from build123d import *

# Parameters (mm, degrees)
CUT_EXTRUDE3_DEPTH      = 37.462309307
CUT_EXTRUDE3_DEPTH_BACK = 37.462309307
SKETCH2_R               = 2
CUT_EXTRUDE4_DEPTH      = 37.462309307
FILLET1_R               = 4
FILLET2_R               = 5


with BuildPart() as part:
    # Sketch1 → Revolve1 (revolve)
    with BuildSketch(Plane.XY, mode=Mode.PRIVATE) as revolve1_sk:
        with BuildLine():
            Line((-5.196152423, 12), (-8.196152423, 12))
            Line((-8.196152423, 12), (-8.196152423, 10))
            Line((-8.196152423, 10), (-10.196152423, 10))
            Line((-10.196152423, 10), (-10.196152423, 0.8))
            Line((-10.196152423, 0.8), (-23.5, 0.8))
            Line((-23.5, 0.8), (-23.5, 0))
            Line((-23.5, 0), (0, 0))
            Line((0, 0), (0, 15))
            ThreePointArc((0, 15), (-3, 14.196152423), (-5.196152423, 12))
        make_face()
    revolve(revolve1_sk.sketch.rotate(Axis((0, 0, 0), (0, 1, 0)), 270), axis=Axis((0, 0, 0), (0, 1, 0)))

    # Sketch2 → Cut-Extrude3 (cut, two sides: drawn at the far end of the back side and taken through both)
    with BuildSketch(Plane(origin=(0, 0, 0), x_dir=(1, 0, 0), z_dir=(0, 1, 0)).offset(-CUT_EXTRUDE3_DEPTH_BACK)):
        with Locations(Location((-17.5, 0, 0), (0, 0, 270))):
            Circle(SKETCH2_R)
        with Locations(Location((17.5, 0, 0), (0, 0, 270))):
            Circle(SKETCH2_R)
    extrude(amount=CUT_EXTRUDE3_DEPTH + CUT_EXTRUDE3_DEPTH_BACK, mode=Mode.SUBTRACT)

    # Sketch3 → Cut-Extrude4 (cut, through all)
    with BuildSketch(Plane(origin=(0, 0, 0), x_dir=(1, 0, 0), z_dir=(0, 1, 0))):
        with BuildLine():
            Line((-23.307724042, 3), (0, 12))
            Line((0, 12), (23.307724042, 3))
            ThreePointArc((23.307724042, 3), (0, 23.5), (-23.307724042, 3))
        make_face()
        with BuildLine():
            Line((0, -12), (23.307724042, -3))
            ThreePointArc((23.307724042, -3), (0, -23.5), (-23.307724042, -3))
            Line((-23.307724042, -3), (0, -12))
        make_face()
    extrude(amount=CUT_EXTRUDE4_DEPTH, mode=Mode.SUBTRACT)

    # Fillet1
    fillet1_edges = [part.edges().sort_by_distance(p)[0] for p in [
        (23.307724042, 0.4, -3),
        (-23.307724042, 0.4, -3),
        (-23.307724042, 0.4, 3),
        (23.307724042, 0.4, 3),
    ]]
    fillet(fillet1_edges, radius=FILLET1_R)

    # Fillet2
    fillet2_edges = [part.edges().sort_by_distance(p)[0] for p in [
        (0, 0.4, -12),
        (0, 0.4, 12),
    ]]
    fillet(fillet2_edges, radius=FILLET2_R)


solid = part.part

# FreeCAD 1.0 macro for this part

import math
import FreeCAD as App
import Part
import Sketcher
from FreeCAD import Vector
Q = App.Units.Quantity


def edges_at(feature, points):
    """Names of the edges that pass closest to the given points."""
    edges = feature.Shape.Edges
    near = lambda p: min(range(len(edges)), key=lambda i: edges[i].distToShape(Part.Vertex(*p))[0])
    return sorted({f"Edge{near(p) + 1}" for p in points})

doc = App.newDocument("Part")
params = doc.addObject("Spreadsheet::Sheet", "Params")
for row, (alias, value) in enumerate([
    ("sketch1_radius", "6 mm"),
    ("sketch1_width", "3 mm"),
    ("sketch1_width2", "2 mm"),
    ("sketch1_height", "15 mm"),
    ("sketch1_width3", "23.5 mm"),
    ("revolution_angle", "360 deg"),
    ("sketch2_diameter", "4 mm"),
    ("sketch3_radius", "23.5 mm"),
    ("fillet_radius", "4 mm"),
    ("fillet2_radius", "5 mm"),
], start=1):
    params.set(f"A{row}", alias)
    params.set(f"B{row}", "=" + value)
    params.setAlias(f"B{row}", alias)

body = doc.addObject("PartDesign::Body", "Body")

# Sketch on XY plane
sketch1 = body.newObject("Sketcher::SketchObject", "Sketch")
sketch1.AttachmentSupport = (doc.getObject("XY_Plane"), [""])
sketch1.MapMode = "FlatFace"
sketch1.addGeometry(Part.LineSegment(Vector(-5.196152, 12, 0), Vector(-8.196152, 12, 0)), False)
sketch1.addGeometry(Part.LineSegment(Vector(-8.196152, 12, 0), Vector(-8.196152, 10, 0)), False)
sketch1.addGeometry(Part.LineSegment(Vector(-8.196152, 10, 0), Vector(-10.196152, 10, 0)), False)
sketch1.addGeometry(Part.LineSegment(Vector(-10.196152, 10, 0), Vector(-10.196152, 0.8, 0)), False)
sketch1.addGeometry(Part.LineSegment(Vector(-10.196152, 0.8, 0), Vector(-23.5, 0.8, 0)), False)
sketch1.addGeometry(Part.LineSegment(Vector(-23.5, 0.8, 0), Vector(-23.5, 0, 0)), False)
sketch1.addGeometry(Part.LineSegment(Vector(-23.5, 0, 0), Vector(0, 0, 0)), False)
sketch1.addGeometry(Part.LineSegment(Vector(0, 0, 0), Vector(0, 15, 0)), False)
sketch1.addGeometry(Part.ArcOfCircle(Part.Circle(Vector(0, 9, 0), Vector(0, 0, 1), 6), math.radians(90), math.radians(150)), False)
sketch1.addConstraint(Sketcher.Constraint("Coincident", 0, 2, 1, 1))
sketch1.addConstraint(Sketcher.Constraint("Coincident", 1, 2, 2, 1))
sketch1.addConstraint(Sketcher.Constraint("Coincident", 2, 2, 3, 1))
sketch1.addConstraint(Sketcher.Constraint("Coincident", 3, 2, 4, 1))
sketch1.addConstraint(Sketcher.Constraint("Coincident", 4, 2, 5, 1))
sketch1.addConstraint(Sketcher.Constraint("Coincident", 5, 2, 6, 1))
sketch1.addConstraint(Sketcher.Constraint("Coincident", 6, 2, 7, 1))
sketch1.addConstraint(Sketcher.Constraint("Coincident", 7, 2, 8, 1))
sketch1.addConstraint(Sketcher.Constraint("Coincident", 8, 2, 0, 1))
sketch1.addConstraint(Sketcher.Constraint("Horizontal", 0))
sketch1.addConstraint(Sketcher.Constraint("Vertical", 1))
sketch1.addConstraint(Sketcher.Constraint("Horizontal", 2))
sketch1.addConstraint(Sketcher.Constraint("Vertical", 3))
sketch1.addConstraint(Sketcher.Constraint("Horizontal", 4))
sketch1.addConstraint(Sketcher.Constraint("Vertical", 5))
sketch1.addConstraint(Sketcher.Constraint("Horizontal", 6))
sketch1.addConstraint(Sketcher.Constraint("Vertical", 7))
sketch1.addConstraint(Sketcher.Constraint("Coincident", 6, 2, -1, 1))
sketch1.addConstraint(Sketcher.Constraint("PointOnObject", 8, 3, -2))
sketch1.addConstraint(Sketcher.Constraint("Equal", 2, 1))
sketch1.addConstraint(Sketcher.Constraint("Radius", 8, Q("6 mm")))
sketch1.addConstraint(Sketcher.Constraint("DistanceX", 0, 2, 0, 1, Q("3 mm")))
sketch1.addConstraint(Sketcher.Constraint("DistanceX", 2, 2, 2, 1, Q("2 mm")))
sketch1.addConstraint(Sketcher.Constraint("DistanceY", 7, 1, 7, 2, Q("15 mm")))
sketch1.addConstraint(Sketcher.Constraint("DistanceX", 6, 1, 6, 2, Q("23.5 mm")))
sketch1.addConstraint(Sketcher.Constraint("DistanceY", 3, 2, 3, 1, Q("9.2 mm")))
sketch1.addConstraint(Sketcher.Constraint("DistanceY", 5, 2, 5, 1, Q("0.8 mm")))
sketch1.setExpression("Constraints[20]", "Params.sketch1_radius")
sketch1.setExpression("Constraints[21]", "Params.sketch1_width")
sketch1.setExpression("Constraints[22]", "Params.sketch1_width2")
sketch1.setExpression("Constraints[23]", "Params.sketch1_height")
sketch1.setExpression("Constraints[24]", "Params.sketch1_width3")
revolution = body.newObject("PartDesign::Revolution", "Revolution")
revolution.Profile = sketch1
revolution.ReferenceAxis = (sketch1, ["V_Axis"])
revolution.setExpression("Angle", "Params.revolution_angle")

# Sketch on XZ plane
sketch2 = body.newObject("Sketcher::SketchObject", "Sketch001")
sketch2.AttachmentSupport = (doc.getObject("XZ_Plane"), [""])
sketch2.MapMode = "FlatFace"
sketch2.addGeometry(Part.Circle(Vector(-17.5, 0, 0), Vector(0, 0, 1), 2), False)
sketch2.addGeometry(Part.Circle(Vector(17.5, 0, 0), Vector(0, 0, 1), 2), False)
sketch2.addConstraint(Sketcher.Constraint("Equal", 0, 1))
sketch2.addConstraint(Sketcher.Constraint("Symmetric", 0, 3, 1, 3, -1, 1))
sketch2.addConstraint(Sketcher.Constraint("PointOnObject", 0, 3, -1))
sketch2.addConstraint(Sketcher.Constraint("Diameter", 0, Q("4 mm")))
sketch2.addConstraint(Sketcher.Constraint("DistanceX", 0, 3, 1, 3, Q("35 mm")))
sketch2.setExpression("Constraints[3]", "Params.sketch2_diameter")
pocket1 = body.newObject("PartDesign::Pocket", "Pocket")
pocket1.Profile = sketch2
pocket1.Type = "ThroughAll"
pocket1.Midplane = True

# Sketch on XZ plane
sketch3 = body.newObject("Sketcher::SketchObject", "Sketch002")
sketch3.AttachmentSupport = (doc.getObject("XZ_Plane"), [""])
sketch3.MapMode = "FlatFace"
sketch3.addGeometry(Part.LineSegment(Vector(-23.307724, -3, 0), Vector(0, -12, 0)), False)
sketch3.addGeometry(Part.LineSegment(Vector(0, -12, 0), Vector(23.307724, -3, 0)), False)
sketch3.addGeometry(Part.ArcOfCircle(Part.Circle(Vector(0, 0, 0), Vector(0, 0, 1), 23.5), math.radians(-172.665631), math.radians(-7.334369)), False)
sketch3.addGeometry(Part.LineSegment(Vector(23.307724, 3, 0), Vector(0, 12, 0)), False)
sketch3.addGeometry(Part.LineSegment(Vector(0, 12, 0), Vector(-23.307724, 3, 0)), False)
sketch3.addGeometry(Part.ArcOfCircle(Part.Circle(Vector(0, 0, 0), Vector(0, 0, 1), 23.5), math.radians(7.334369), math.radians(172.665631)), False)
sketch3.addConstraint(Sketcher.Constraint("Coincident", 0, 2, 1, 1))
sketch3.addConstraint(Sketcher.Constraint("Coincident", 1, 2, 2, 2))
sketch3.addConstraint(Sketcher.Constraint("Coincident", 2, 1, 0, 1))
sketch3.addConstraint(Sketcher.Constraint("Coincident", 3, 2, 4, 1))
sketch3.addConstraint(Sketcher.Constraint("Coincident", 4, 2, 5, 2))
sketch3.addConstraint(Sketcher.Constraint("Coincident", 5, 1, 3, 1))
sketch3.addConstraint(Sketcher.Constraint("Coincident", 2, 3, -1, 1))
sketch3.addConstraint(Sketcher.Constraint("Coincident", 5, 3, -1, 1))
sketch3.addConstraint(Sketcher.Constraint("Equal", 2, 5))
sketch3.addConstraint(Sketcher.Constraint("Symmetric", 0, 2, 3, 2, -1, 1))
sketch3.addConstraint(Sketcher.Constraint("PointOnObject", 0, 2, -2))
sketch3.addConstraint(Sketcher.Constraint("Parallel", 0, 3))
sketch3.addConstraint(Sketcher.Constraint("Parallel", 1, 4))
sketch3.addConstraint(Sketcher.Constraint("Horizontal", 1, 2, 2, 1))
sketch3.addConstraint(Sketcher.Constraint("Radius", 2, Q("23.5 mm")))
sketch3.addConstraint(Sketcher.Constraint("DistanceY", 0, 2, -1, 1, Q("12 mm")))
sketch3.addConstraint(Sketcher.Constraint("DistanceY", 1, 2, -1, 1, Q("3 mm")))
sketch3.setExpression("Constraints[14]", "Params.sketch3_radius")
pocket2 = body.newObject("PartDesign::Pocket", "Pocket001")
pocket2.Profile = sketch3
pocket2.Type = "ThroughAll"
doc.recompute()

fillet = body.newObject("PartDesign::Fillet", "Fillet")
fillet.Base = (pocket2, edges_at(pocket2, [
    (23.308, 0.4, -3),
    (-23.308, 0.4, -3),
    (-23.308, 0.4, 3),
    (23.308, 0.4, 3),
]))
fillet.setExpression("Radius", "Params.fillet_radius")
doc.recompute()

fillet2 = body.newObject("PartDesign::Fillet", "Fillet001")
fillet2.Base = (fillet, edges_at(fillet, [(0, 0.4, -12), (0, 0.4, 12)]))
fillet2.setExpression("Radius", "Params.fillet2_radius")

doc.recompute()
